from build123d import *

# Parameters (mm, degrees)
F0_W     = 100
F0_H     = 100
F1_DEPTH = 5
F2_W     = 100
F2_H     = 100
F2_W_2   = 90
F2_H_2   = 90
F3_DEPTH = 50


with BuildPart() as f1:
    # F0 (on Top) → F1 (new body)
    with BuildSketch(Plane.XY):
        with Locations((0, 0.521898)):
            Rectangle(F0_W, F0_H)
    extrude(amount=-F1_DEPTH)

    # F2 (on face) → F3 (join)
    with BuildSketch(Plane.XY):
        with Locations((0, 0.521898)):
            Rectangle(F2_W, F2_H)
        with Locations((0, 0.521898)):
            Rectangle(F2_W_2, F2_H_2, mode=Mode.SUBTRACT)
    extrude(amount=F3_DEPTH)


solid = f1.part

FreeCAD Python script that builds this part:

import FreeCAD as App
import Part
import Sketcher
from FreeCAD import Vector


def add_polygon(sketch, points):
    """Adds a closed chain of lines whose ends are joined by coincident constraints."""
    first, n = sketch.GeometryCount, len(points)
    for a, b in zip(points, points[1:] + points[:1]):
        sketch.addGeometry(Part.LineSegment(App.Vector(*a, 0), App.Vector(*b, 0)), False)
    for i in range(n):
        sketch.addConstraint(Sketcher.Constraint("Coincident", first + i, 2, first + (i + 1) % n, 1))

doc = App.newDocument("Part")
params = doc.addObject("Spreadsheet::Sheet", "Params")
for row, (alias, value) in enumerate([
    ("sketch1_width", "100 mm"),
    ("pad1_length", "5 mm"),
    ("sketch2_width", "100 mm"),
    ("sketch2_width2", "90 mm"),
    ("pad2_length", "50 mm"),
], start=1):
    params.set(f"A{row}", alias)
    params.set(f"B{row}", "=" + value)
    params.setAlias(f"B{row}", alias)

body = doc.addObject("PartDesign::Body", "Body")

# Sketch on XY plane
sketch1 = doc.addObject("Sketcher::SketchObject", "Sketch")
body.addObject(sketch1)
sketch1.AttachmentSupport = (doc.XY_Plane, [""])
sketch1.MapMode = "FlatFace"
add_polygon(sketch1, [(-50, 51), (-50, -49), (50, -49), (50, 51)])  # lines 0-3
sketch1.addConstraint([
    Sketcher.Constraint("Vertical", 0),
    Sketcher.Constraint("Horizontal", 1),
    Sketcher.Constraint("Vertical", 2),
    Sketcher.Constraint("Horizontal", 3),
    Sketcher.Constraint("Equal", 3, 0),
    Sketcher.Constraint("DistanceX", 1, 1, 1, 2, 100.0),
    Sketcher.Constraint("DistanceX", 0, 2, -1, 1, 50.0),
    Sketcher.Constraint("DistanceY", 0, 2, -1, 1, 49.478102),
])
sketch1.setExpression("Constraints[9]", "Params.sketch1_width")
pad1 = doc.addObject("PartDesign::Pad", "Pad")
body.addObject(pad1)
pad1.Profile = sketch1
pad1.setExpression("Length", "Params.pad1_length")
pad1.Reversed = True

# Sketch on XY plane
sketch2 = doc.addObject("Sketcher::SketchObject", "Sketch001")
body.addObject(sketch2)
sketch2.AttachmentSupport = (doc.XY_Plane, [""])
sketch2.MapMode = "FlatFace"
add_polygon(sketch2, [(-50, 51), (-50, -49), (50, -49), (50, 51)])  # lines 0-3
add_polygon(sketch2, [(45, -44), (-45, -44), (-45, 46), (45, 46)])  # lines 4-7
sketch2.addConstraint([
    Sketcher.Constraint("Vertical", 0),
    Sketcher.Constraint("Horizontal", 1),
    Sketcher.Constraint("Vertical", 2),
    Sketcher.Constraint("Horizontal", 3),
    Sketcher.Constraint("Horizontal", 4),
    Sketcher.Constraint("Vertical", 5),
    Sketcher.Constraint("Horizontal", 6),
    Sketcher.Constraint("Vertical", 7),
    Sketcher.Constraint("Equal", 3, 0),
    Sketcher.Constraint("Equal", 6, 5),
    Sketcher.Constraint("DistanceX", 1, 1, 1, 2, 100.0),
    Sketcher.Constraint("DistanceX", 4, 2, 4, 1, 90.0),
    Sketcher.Constraint("DistanceX", 0, 2, -1, 1, 50.0),
    Sketcher.Constraint("DistanceX", 4, 2, -1, 1, 45.0),
    Sketcher.Constraint("DistanceY", 0, 2, 4, 2, 5.0),
    Sketcher.Constraint("DistanceY", 0, 2, -1, 1, 49.478102),
])
sketch2.setExpression("Constraints[18]", "Params.sketch2_width")
sketch2.setExpression("Constraints[19]", "Params.sketch2_width2")
pad2 = doc.addObject("PartDesign::Pad", "Pad001")
body.addObject(pad2)
pad2.Profile = sketch2
pad2.setExpression("Length", "Params.pad2_length")

doc.recompute()
